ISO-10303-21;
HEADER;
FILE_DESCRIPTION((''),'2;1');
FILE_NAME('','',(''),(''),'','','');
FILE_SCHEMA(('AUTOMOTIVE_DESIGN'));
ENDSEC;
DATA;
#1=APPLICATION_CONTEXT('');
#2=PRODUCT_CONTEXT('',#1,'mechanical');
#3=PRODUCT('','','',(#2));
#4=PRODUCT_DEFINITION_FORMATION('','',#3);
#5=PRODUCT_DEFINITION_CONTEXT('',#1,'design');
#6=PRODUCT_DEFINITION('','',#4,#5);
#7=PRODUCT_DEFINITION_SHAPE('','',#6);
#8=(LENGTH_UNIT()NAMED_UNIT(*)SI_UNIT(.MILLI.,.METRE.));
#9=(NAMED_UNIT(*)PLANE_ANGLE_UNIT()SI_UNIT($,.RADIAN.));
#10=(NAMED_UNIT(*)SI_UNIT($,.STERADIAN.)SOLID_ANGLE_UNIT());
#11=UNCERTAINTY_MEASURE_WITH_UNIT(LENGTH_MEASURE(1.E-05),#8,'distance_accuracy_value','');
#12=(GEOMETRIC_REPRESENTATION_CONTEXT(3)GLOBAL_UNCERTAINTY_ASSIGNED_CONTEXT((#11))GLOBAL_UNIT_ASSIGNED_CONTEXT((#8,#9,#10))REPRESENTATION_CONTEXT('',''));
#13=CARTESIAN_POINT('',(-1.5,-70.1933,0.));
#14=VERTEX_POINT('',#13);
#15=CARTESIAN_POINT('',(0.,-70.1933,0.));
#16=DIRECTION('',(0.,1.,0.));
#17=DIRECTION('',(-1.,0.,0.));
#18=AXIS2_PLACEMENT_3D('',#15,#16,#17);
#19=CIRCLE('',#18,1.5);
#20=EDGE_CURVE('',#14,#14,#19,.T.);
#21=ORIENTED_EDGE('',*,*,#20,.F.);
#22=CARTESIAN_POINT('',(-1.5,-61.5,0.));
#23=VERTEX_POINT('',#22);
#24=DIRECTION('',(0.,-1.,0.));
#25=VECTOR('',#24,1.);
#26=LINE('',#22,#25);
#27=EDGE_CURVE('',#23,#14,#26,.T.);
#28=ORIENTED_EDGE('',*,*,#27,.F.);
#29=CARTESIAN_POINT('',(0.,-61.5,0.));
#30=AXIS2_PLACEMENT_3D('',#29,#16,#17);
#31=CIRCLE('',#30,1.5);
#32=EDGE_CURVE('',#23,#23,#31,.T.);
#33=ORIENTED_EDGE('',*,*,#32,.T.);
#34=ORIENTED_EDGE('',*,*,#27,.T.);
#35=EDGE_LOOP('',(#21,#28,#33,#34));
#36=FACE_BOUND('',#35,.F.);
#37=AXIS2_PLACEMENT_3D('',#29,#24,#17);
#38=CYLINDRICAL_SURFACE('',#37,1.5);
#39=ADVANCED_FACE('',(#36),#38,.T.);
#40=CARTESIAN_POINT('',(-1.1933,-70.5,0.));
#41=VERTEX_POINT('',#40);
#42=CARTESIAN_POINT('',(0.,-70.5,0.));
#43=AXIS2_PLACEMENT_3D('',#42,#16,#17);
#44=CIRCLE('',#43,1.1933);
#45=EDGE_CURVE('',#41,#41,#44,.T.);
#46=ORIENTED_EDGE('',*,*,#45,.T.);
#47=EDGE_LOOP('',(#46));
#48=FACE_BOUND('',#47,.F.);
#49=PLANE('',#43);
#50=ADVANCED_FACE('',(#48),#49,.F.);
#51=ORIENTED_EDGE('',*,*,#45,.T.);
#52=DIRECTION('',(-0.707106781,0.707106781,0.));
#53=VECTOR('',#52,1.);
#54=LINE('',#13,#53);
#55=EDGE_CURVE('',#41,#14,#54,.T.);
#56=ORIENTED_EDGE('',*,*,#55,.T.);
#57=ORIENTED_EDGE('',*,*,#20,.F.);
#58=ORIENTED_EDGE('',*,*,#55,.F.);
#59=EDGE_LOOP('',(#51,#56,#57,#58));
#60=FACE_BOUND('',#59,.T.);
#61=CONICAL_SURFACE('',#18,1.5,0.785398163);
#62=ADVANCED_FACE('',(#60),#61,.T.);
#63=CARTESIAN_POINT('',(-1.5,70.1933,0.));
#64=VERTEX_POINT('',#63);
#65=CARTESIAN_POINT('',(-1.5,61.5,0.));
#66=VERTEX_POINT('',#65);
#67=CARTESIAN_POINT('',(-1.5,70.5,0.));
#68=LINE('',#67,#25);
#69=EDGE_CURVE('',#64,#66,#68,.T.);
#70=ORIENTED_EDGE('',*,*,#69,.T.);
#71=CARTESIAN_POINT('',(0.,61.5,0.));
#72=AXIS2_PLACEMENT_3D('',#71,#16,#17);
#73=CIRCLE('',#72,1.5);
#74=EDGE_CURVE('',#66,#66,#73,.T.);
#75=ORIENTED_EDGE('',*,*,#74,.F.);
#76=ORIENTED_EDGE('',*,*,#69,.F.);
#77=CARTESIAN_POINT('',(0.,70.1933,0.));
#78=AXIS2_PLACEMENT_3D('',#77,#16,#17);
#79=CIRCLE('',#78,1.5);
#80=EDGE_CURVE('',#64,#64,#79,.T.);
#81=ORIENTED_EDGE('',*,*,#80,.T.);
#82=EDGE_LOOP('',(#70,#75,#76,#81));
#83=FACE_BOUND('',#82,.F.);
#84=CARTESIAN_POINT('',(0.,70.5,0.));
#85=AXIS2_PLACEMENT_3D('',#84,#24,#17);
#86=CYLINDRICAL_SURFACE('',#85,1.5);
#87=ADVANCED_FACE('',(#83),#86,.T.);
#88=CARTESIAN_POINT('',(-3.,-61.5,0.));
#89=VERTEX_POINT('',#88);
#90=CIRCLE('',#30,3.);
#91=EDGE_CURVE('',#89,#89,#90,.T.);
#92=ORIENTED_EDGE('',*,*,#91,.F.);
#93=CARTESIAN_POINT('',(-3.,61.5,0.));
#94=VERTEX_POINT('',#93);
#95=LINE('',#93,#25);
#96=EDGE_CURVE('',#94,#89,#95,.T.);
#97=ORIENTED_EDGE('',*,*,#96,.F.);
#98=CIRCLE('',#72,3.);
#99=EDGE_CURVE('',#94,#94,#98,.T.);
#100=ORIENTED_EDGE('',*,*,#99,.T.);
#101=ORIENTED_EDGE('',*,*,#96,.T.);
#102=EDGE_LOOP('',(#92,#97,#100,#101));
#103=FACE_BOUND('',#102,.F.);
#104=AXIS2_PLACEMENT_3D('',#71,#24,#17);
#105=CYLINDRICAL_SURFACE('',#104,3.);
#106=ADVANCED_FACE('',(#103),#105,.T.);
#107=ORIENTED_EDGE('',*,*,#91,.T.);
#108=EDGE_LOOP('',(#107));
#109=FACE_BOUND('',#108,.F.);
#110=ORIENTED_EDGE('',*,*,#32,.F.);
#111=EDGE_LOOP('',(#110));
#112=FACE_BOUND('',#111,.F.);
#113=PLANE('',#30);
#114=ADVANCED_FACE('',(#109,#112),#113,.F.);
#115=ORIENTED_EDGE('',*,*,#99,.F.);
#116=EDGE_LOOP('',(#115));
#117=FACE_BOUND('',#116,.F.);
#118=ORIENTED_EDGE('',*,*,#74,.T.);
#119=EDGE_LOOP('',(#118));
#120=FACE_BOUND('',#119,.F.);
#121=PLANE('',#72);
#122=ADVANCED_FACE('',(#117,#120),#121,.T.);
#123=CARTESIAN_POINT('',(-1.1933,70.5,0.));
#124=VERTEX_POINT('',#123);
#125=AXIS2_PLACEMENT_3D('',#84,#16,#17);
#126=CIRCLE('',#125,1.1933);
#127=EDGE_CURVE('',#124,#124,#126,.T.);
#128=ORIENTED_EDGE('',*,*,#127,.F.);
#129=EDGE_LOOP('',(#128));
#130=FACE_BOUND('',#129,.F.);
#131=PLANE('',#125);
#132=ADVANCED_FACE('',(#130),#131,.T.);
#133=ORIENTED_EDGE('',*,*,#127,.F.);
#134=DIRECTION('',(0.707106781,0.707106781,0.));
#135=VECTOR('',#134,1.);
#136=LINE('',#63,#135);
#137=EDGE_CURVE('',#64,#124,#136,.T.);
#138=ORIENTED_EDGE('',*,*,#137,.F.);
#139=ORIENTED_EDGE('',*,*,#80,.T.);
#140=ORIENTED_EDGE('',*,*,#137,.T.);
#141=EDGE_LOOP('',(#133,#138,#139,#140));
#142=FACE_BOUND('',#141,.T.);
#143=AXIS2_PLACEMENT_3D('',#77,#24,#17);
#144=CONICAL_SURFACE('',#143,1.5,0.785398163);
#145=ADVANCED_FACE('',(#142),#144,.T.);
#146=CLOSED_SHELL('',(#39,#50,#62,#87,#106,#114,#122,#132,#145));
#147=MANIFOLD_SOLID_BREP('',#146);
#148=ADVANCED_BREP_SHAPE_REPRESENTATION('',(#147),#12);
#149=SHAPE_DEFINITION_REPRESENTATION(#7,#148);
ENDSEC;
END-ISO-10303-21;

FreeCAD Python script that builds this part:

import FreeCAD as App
import Part
import Sketcher

V = App.Vector
Q = App.Units.Quantity


def edges_at(feature, points):
    """Names of the edges that pass closest to the given points."""
    edges = feature.Shape.Edges
    near = lambda p: min(range(len(edges)), key=lambda i: edges[i].distToShape(Part.Vertex(*p))[0])
    return sorted({f"Edge{near(p) + 1}" for p in points})


def add_polygon(sketch, points):
    """Adds a closed chain of lines whose ends are joined by coincident constraints."""
    first, n = sketch.GeometryCount, len(points)
    for a, b in zip(points, points[1:] + points[:1]):
        sketch.addGeometry(Part.LineSegment(App.Vector(*a, 0), App.Vector(*b, 0)), False)
    for i in range(n):
        sketch.addConstraint(Sketcher.Constraint("Coincident", first + i, 2, first + (i + 1) % n, 1))

doc = App.newDocument("Part")
body = doc.addObject("PartDesign::Body", "Body")

sketch1 = body.newObject("Sketcher::SketchObject", "Sketch")
sketch1.AttachmentSupport = (doc.getObject("XY_Plane"), [""])
sketch1.MapMode = "FlatFace"
add_polygon(sketch1, [(-1.5, -70.5), (0, -70.5), (0, 70.5), (-1.5, 70.5), (-1.5, 61.5), (-3, 61.5), (-3, -61.5), (-1.5, -61.5)])
sketch1.addConstraint(Sketcher.Constraint("Horizontal", 0))
sketch1.addConstraint(Sketcher.Constraint("Vertical", 1))
sketch1.addConstraint(Sketcher.Constraint("Horizontal", 2))
sketch1.addConstraint(Sketcher.Constraint("Vertical", 3))
sketch1.addConstraint(Sketcher.Constraint("Horizontal", 4))
sketch1.addConstraint(Sketcher.Constraint("Vertical", 5))
sketch1.addConstraint(Sketcher.Constraint("Horizontal", 6))
sketch1.addConstraint(Sketcher.Constraint("Vertical", 7))
sketch1.addConstraint(Sketcher.Constraint("Symmetric", 0, 2, 1, 2, -1, 1))
sketch1.addConstraint(Sketcher.Constraint("Symmetric", 3, 2, 6, 2, -1))
sketch1.addConstraint(Sketcher.Constraint("Equal", 2, 4))
sketch1.addConstraint(Sketcher.Constraint("DistanceY", 3, 2, 3, 1, Q("9 mm")))
sketch1.addConstraint(Sketcher.Constraint("DistanceY", 5, 2, 5, 1, Q("123 mm")))
sketch1.addConstraint(Sketcher.Constraint("DistanceX", 4, 2, -1, 1, Q("3 mm")))
revolution = body.newObject("PartDesign::Revolution", "Revolution")
revolution.Profile = sketch1
revolution.ReferenceAxis = (sketch1, ["V_Axis"])
revolution.Angle = 360
doc.recompute()

chamfer = body.newObject("PartDesign::Chamfer", "Chamfer")
chamfer.Base = (revolution, edges_at(revolution, [(1.5, 70.5, 0), (1.5, -70.5, 0)]))
chamfer.Size = 0.3067

doc.recompute()
